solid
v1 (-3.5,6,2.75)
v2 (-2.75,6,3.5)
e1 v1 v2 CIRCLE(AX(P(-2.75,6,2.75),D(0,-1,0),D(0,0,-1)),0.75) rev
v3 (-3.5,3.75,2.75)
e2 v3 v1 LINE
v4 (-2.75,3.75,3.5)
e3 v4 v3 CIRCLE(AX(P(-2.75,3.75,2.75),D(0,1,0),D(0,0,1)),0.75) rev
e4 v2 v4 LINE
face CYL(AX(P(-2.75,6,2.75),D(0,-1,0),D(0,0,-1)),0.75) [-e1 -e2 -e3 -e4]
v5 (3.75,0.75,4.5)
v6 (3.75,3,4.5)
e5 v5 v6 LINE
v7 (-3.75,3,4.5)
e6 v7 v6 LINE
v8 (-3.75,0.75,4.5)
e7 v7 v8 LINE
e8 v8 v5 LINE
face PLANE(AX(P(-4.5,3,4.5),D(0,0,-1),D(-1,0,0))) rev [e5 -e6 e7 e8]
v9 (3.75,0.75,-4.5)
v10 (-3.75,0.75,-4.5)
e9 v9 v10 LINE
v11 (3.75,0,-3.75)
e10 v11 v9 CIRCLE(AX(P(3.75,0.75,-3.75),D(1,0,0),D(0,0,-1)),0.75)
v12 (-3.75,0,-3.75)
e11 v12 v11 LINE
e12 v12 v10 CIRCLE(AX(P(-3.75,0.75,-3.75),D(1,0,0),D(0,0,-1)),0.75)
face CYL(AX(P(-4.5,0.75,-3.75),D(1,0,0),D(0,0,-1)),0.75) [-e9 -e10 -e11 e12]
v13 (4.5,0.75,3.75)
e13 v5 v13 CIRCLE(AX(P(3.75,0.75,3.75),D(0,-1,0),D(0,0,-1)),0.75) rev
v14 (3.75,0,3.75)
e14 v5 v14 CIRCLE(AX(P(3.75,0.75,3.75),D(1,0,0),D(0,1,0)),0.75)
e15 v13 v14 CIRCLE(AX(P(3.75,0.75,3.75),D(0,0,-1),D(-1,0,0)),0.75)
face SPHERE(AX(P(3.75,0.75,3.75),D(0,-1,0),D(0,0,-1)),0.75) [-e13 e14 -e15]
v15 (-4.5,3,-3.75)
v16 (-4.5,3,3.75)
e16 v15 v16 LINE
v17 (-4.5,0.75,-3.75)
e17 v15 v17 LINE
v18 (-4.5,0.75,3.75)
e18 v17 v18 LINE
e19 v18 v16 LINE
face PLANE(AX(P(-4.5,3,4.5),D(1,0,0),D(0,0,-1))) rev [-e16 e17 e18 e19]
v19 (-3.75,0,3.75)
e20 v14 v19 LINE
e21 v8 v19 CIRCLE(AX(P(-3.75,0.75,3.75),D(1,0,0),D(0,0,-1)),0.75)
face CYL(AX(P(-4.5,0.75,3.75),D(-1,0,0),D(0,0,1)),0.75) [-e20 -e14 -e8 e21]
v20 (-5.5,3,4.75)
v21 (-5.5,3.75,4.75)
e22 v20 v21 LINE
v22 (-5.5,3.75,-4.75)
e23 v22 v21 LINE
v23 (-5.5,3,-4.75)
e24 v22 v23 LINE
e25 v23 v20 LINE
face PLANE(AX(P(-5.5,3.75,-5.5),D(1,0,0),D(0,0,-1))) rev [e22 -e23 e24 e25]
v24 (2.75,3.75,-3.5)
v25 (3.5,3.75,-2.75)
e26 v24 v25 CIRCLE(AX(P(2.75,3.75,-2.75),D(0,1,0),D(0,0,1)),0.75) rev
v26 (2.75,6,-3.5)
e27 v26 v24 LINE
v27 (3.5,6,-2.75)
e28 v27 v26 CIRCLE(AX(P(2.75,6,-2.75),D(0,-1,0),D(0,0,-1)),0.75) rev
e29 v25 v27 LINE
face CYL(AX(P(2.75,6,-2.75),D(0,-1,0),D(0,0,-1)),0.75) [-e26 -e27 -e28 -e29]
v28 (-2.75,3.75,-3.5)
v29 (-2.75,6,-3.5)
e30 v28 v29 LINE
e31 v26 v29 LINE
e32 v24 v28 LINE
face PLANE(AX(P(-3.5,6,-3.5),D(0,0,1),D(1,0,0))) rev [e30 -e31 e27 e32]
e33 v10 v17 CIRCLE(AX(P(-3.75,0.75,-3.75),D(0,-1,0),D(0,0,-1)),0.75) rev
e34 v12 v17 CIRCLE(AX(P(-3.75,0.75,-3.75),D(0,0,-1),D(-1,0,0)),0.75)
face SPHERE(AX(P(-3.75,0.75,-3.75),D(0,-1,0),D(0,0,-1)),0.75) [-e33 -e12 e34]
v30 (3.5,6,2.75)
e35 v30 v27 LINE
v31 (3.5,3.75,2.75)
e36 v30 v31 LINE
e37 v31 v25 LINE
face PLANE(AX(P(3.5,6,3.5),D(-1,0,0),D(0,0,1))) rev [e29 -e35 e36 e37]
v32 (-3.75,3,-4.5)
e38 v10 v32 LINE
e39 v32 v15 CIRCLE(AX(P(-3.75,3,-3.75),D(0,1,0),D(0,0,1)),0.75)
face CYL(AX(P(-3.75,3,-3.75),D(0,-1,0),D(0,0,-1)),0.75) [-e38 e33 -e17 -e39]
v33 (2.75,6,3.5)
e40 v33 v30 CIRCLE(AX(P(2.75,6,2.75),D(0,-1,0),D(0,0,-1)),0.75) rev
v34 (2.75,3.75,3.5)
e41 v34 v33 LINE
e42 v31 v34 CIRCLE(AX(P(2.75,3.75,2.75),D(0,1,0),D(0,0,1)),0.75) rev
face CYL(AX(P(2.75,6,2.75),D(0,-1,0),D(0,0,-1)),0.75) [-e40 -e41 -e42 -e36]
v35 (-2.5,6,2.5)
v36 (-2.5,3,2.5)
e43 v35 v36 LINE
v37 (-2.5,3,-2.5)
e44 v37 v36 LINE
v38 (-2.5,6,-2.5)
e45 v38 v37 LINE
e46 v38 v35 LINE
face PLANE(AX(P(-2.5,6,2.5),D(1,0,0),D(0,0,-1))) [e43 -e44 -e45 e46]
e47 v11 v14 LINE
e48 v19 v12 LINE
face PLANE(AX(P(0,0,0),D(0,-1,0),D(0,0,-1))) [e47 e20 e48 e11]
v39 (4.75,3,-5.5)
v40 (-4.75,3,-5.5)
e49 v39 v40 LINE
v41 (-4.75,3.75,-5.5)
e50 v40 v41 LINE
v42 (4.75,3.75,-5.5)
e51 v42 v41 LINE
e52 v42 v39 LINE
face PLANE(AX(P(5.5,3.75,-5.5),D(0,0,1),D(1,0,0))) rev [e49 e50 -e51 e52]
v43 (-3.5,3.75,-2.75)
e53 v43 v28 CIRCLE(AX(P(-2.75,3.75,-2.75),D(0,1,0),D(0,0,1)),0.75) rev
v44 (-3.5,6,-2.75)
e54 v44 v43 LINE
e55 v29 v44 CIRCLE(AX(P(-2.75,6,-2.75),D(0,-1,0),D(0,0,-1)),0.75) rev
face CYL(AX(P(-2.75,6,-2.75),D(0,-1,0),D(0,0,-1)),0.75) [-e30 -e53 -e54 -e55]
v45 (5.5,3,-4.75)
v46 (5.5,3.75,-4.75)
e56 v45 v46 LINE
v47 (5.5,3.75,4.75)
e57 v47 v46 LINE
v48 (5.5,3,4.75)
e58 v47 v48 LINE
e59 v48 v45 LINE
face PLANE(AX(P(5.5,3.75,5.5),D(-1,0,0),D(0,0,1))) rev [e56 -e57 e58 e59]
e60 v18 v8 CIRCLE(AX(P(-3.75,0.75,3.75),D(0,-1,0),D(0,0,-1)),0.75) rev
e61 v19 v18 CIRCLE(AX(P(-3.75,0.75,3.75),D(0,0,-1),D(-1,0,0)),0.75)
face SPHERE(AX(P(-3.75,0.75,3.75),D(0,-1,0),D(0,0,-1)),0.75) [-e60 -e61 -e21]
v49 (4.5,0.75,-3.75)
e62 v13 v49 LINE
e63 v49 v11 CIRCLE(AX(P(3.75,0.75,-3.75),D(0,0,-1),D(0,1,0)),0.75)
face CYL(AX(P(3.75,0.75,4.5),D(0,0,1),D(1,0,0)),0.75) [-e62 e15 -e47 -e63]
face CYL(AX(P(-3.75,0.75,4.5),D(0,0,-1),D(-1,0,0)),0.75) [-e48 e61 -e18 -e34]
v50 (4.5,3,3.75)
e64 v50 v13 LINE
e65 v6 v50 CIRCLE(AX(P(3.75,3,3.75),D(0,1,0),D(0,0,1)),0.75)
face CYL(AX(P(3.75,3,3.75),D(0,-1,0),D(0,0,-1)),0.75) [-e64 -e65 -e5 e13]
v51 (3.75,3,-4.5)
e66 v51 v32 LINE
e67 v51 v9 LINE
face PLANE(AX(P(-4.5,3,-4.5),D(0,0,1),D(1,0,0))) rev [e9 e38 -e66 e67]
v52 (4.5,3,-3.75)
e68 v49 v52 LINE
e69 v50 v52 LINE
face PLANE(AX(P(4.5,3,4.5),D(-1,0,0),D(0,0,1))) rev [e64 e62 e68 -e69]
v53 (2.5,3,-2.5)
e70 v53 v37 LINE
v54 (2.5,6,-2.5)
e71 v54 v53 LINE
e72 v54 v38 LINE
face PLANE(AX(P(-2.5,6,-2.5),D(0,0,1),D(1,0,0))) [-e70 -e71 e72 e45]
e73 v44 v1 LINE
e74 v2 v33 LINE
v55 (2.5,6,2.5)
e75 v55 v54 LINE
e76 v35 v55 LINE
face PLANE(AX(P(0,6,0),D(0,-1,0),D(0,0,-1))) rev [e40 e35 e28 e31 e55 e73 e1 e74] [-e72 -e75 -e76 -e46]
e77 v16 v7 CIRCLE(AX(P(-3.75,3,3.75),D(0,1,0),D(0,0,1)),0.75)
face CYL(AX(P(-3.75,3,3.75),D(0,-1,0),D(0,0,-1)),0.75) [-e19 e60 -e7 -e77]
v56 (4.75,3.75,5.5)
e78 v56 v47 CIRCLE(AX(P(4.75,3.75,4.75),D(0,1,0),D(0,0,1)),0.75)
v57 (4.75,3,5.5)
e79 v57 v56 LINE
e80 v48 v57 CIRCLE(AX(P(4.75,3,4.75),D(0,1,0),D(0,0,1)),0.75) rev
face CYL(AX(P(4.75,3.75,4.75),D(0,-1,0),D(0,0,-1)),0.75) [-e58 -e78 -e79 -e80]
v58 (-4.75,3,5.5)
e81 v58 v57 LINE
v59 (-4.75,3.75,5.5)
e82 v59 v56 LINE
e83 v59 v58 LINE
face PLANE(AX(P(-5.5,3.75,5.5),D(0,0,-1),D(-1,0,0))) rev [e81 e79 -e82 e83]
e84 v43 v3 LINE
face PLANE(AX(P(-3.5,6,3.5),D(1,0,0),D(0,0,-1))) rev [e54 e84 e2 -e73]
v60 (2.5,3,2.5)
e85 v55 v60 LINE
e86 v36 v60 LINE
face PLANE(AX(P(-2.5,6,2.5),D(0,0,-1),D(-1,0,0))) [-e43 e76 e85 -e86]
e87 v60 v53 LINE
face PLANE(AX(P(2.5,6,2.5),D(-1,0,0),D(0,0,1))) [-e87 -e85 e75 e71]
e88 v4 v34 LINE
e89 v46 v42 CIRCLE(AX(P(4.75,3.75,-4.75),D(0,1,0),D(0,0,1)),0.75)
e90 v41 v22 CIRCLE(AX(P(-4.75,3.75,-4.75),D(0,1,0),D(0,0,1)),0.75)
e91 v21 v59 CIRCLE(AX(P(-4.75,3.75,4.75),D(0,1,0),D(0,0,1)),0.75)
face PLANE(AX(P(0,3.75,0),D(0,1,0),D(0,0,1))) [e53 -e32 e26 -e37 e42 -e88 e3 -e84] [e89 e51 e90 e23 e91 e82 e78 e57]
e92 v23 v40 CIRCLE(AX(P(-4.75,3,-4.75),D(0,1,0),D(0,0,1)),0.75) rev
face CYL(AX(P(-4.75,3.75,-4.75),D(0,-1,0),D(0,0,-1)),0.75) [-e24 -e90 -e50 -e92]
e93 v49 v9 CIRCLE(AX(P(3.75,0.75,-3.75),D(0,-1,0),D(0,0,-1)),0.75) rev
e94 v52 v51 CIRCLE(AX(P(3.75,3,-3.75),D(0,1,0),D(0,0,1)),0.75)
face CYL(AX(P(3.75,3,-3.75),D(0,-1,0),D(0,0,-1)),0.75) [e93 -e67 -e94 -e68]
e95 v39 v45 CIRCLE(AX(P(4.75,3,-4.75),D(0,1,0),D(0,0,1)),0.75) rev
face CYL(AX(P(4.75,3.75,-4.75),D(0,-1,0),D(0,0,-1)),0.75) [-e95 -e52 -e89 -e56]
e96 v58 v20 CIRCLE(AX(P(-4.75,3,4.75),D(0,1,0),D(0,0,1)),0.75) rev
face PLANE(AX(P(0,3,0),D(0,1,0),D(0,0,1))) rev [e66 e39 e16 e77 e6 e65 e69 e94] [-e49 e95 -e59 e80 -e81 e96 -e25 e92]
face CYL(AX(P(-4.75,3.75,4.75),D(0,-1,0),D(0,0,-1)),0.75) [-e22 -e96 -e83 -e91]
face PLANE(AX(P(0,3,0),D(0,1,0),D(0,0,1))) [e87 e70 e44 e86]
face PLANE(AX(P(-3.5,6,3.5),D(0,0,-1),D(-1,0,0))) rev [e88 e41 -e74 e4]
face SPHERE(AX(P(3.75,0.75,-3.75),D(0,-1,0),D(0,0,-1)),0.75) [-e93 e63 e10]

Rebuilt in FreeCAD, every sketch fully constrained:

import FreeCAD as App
import Part
import Sketcher

V = App.Vector
Q = App.Units.Quantity


def edges_at(feature, points):
    """Names of the edges that pass closest to the given points."""
    edges = feature.Shape.Edges
    near = lambda p: min(range(len(edges)), key=lambda i: edges[i].distToShape(Part.Vertex(*p))[0])
    return sorted({f"Edge{near(p) + 1}" for p in points})


def add_polygon(sketch, points):
    """Adds a closed chain of lines whose ends are joined by coincident constraints."""
    first, n = sketch.GeometryCount, len(points)
    for a, b in zip(points, points[1:] + points[:1]):
        sketch.addGeometry(Part.LineSegment(App.Vector(*a, 0), App.Vector(*b, 0)), False)
    for i in range(n):
        sketch.addConstraint(Sketcher.Constraint("Coincident", first + i, 2, first + (i + 1) % n, 1))

doc = App.newDocument("Part")
body = doc.addObject("PartDesign::Body", "Body")

# Sketch on XZ plane
sketch1 = body.newObject("Sketcher::SketchObject", "Sketch")
sketch1.AttachmentSupport = (doc.getObject("XZ_Plane"), [""])
sketch1.MapMode = "FlatFace"
add_polygon(sketch1, [(-4.5, -4.5), (-4.5, 4.5), (4.5, 4.5), (4.5, -4.5)])  # lines 0-3
sketch1.addConstraint(Sketcher.Constraint("Vertical", 0))
sketch1.addConstraint(Sketcher.Constraint("Horizontal", 1))
sketch1.addConstraint(Sketcher.Constraint("Vertical", 2))
sketch1.addConstraint(Sketcher.Constraint("Horizontal", 3))
sketch1.addConstraint(Sketcher.Constraint("Symmetric", 0, 2, 2, 2, -1, 1))
sketch1.addConstraint(Sketcher.Constraint("Equal", 3, 0))
sketch1.addConstraint(Sketcher.Constraint("DistanceX", 1, 1, 1, 2, Q("9 mm")))
pad1 = body.newObject("PartDesign::Pad", "Pad")
pad1.Profile = sketch1
pad1.Length = 3
pad1.Reversed = True

# Sketch on XZ plane
sketch2 = body.newObject("Sketcher::SketchObject", "Sketch001")
sketch2.AttachmentSupport = (doc.getObject("XZ_Plane"), [""])
sketch2.MapMode = "FlatFace"
sketch2.AttachmentOffset = App.Placement(V(0, 0, -3), App.Rotation())
add_polygon(sketch2, [(-5.5, -5.5), (-5.5, 5.5), (5.5, 5.5), (5.5, -5.5)])  # lines 0-3
sketch2.addConstraint(Sketcher.Constraint("Vertical", 0))
sketch2.addConstraint(Sketcher.Constraint("Horizontal", 1))
sketch2.addConstraint(Sketcher.Constraint("Vertical", 2))
sketch2.addConstraint(Sketcher.Constraint("Horizontal", 3))
sketch2.addConstraint(Sketcher.Constraint("Symmetric", 0, 2, 2, 2, -1, 1))
sketch2.addConstraint(Sketcher.Constraint("Equal", 3, 0))
sketch2.addConstraint(Sketcher.Constraint("DistanceX", 1, 1, 1, 2, Q("11 mm")))
pad2 = body.newObject("PartDesign::Pad", "Pad001")
pad2.Profile = sketch2
pad2.Length = 0.75
pad2.Reversed = True

# Sketch on XZ plane
sketch3 = body.newObject("Sketcher::SketchObject", "Sketch002")
sketch3.AttachmentSupport = (doc.getObject("XZ_Plane"), [""])
sketch3.MapMode = "FlatFace"
sketch3.AttachmentOffset = App.Placement(V(0, 0, -3.75), App.Rotation())
add_polygon(sketch3, [(-3.5, -3.5), (-3.5, 3.5), (3.5, 3.5), (3.5, -3.5)])  # lines 0-3
add_polygon(sketch3, [(2.5, 2.5), (-2.5, 2.5), (-2.5, -2.5), (2.5, -2.5)])  # lines 4-7
sketch3.addConstraint(Sketcher.Constraint("Vertical", 0))
sketch3.addConstraint(Sketcher.Constraint("Horizontal", 1))
sketch3.addConstraint(Sketcher.Constraint("Vertical", 2))
sketch3.addConstraint(Sketcher.Constraint("Horizontal", 3))
sketch3.addConstraint(Sketcher.Constraint("Horizontal", 4))
sketch3.addConstraint(Sketcher.Constraint("Vertical", 5))
sketch3.addConstraint(Sketcher.Constraint("Horizontal", 6))
sketch3.addConstraint(Sketcher.Constraint("Vertical", 7))
sketch3.addConstraint(Sketcher.Constraint("Symmetric", 0, 2, 2, 2, -1, 1))
sketch3.addConstraint(Sketcher.Constraint("Symmetric", 4, 2, 6, 2, -1, 1))
sketch3.addConstraint(Sketcher.Constraint("Equal", 3, 0))
sketch3.addConstraint(Sketcher.Constraint("Equal", 6, 5))
sketch3.addConstraint(Sketcher.Constraint("DistanceX", 1, 1, 1, 2, Q("7 mm")))
sketch3.addConstraint(Sketcher.Constraint("DistanceX", 4, 2, 4, 1, Q("5 mm")))
pad3 = body.newObject("PartDesign::Pad", "Pad002")
pad3.Profile = sketch3
pad3.Length = 2.25
pad3.Reversed = True
doc.recompute()

fillet = body.newObject("PartDesign::Fillet", "Fillet")
fillet.Base = (pad3, edges_at(pad3, [
    (-5.5, 3.375, 5.5),
    (5.5, 3.375, 5.5),
    (5.5, 3.375, -5.5),
    (-5.5, 3.375, -5.5),
    (-3.5, 4.875, -3.5),
    (-3.5, 4.875, 3.5),
    (3.5, 4.875, 3.5),
    (3.5, 4.875, -3.5),
    (4.5, 1.5, 4.5),
    (-4.5, 1.5, 4.5),
    (-4.5, 1.5, -4.5),
    (4.5, 1.5, -4.5),
]))
fillet.Radius = 0.75
doc.recompute()

fillet2 = body.newObject("PartDesign::Fillet", "Fillet001")
fillet2.Base = (fillet, edges_at(fillet, [
    (0, 0, -4.5),
    (4.5, 0, 0),
    (0, 0, 4.5),
    (-4.5, 0, 0),
    (4.28, 0, 4.28),
    (-4.28, 0, 4.28),
    (-4.28, 0, -4.28),
    (4.28, 0, -4.28),
]))
fillet2.Radius = 0.75

# Sketch on XZ plane
sketch4 = body.newObject("Sketcher::SketchObject", "Sketch003")
sketch4.AttachmentSupport = (doc.getObject("XZ_Plane"), [""])
sketch4.MapMode = "FlatFace"
sketch4.AttachmentOffset = App.Placement(V(0, 0, -3.75), App.Rotation())
add_polygon(sketch4, [(-2.5, -2.5), (-2.5, 2.5), (2.5, 2.5), (2.5, -2.5)])  # lines 0-3
sketch4.addConstraint(Sketcher.Constraint("Vertical", 0))
sketch4.addConstraint(Sketcher.Constraint("Horizontal", 1))
sketch4.addConstraint(Sketcher.Constraint("Vertical", 2))
sketch4.addConstraint(Sketcher.Constraint("Horizontal", 3))
sketch4.addConstraint(Sketcher.Constraint("Symmetric", 0, 2, 2, 2, -1, 1))
sketch4.addConstraint(Sketcher.Constraint("Equal", 3, 0))
sketch4.addConstraint(Sketcher.Constraint("DistanceX", 1, 1, 1, 2, Q("5 mm")))
pocket1 = body.newObject("PartDesign::Pocket", "Pocket")
pocket1.Profile = sketch4
pocket1.Length = 0.75
pocket1.Reversed = True

doc.recompute()
